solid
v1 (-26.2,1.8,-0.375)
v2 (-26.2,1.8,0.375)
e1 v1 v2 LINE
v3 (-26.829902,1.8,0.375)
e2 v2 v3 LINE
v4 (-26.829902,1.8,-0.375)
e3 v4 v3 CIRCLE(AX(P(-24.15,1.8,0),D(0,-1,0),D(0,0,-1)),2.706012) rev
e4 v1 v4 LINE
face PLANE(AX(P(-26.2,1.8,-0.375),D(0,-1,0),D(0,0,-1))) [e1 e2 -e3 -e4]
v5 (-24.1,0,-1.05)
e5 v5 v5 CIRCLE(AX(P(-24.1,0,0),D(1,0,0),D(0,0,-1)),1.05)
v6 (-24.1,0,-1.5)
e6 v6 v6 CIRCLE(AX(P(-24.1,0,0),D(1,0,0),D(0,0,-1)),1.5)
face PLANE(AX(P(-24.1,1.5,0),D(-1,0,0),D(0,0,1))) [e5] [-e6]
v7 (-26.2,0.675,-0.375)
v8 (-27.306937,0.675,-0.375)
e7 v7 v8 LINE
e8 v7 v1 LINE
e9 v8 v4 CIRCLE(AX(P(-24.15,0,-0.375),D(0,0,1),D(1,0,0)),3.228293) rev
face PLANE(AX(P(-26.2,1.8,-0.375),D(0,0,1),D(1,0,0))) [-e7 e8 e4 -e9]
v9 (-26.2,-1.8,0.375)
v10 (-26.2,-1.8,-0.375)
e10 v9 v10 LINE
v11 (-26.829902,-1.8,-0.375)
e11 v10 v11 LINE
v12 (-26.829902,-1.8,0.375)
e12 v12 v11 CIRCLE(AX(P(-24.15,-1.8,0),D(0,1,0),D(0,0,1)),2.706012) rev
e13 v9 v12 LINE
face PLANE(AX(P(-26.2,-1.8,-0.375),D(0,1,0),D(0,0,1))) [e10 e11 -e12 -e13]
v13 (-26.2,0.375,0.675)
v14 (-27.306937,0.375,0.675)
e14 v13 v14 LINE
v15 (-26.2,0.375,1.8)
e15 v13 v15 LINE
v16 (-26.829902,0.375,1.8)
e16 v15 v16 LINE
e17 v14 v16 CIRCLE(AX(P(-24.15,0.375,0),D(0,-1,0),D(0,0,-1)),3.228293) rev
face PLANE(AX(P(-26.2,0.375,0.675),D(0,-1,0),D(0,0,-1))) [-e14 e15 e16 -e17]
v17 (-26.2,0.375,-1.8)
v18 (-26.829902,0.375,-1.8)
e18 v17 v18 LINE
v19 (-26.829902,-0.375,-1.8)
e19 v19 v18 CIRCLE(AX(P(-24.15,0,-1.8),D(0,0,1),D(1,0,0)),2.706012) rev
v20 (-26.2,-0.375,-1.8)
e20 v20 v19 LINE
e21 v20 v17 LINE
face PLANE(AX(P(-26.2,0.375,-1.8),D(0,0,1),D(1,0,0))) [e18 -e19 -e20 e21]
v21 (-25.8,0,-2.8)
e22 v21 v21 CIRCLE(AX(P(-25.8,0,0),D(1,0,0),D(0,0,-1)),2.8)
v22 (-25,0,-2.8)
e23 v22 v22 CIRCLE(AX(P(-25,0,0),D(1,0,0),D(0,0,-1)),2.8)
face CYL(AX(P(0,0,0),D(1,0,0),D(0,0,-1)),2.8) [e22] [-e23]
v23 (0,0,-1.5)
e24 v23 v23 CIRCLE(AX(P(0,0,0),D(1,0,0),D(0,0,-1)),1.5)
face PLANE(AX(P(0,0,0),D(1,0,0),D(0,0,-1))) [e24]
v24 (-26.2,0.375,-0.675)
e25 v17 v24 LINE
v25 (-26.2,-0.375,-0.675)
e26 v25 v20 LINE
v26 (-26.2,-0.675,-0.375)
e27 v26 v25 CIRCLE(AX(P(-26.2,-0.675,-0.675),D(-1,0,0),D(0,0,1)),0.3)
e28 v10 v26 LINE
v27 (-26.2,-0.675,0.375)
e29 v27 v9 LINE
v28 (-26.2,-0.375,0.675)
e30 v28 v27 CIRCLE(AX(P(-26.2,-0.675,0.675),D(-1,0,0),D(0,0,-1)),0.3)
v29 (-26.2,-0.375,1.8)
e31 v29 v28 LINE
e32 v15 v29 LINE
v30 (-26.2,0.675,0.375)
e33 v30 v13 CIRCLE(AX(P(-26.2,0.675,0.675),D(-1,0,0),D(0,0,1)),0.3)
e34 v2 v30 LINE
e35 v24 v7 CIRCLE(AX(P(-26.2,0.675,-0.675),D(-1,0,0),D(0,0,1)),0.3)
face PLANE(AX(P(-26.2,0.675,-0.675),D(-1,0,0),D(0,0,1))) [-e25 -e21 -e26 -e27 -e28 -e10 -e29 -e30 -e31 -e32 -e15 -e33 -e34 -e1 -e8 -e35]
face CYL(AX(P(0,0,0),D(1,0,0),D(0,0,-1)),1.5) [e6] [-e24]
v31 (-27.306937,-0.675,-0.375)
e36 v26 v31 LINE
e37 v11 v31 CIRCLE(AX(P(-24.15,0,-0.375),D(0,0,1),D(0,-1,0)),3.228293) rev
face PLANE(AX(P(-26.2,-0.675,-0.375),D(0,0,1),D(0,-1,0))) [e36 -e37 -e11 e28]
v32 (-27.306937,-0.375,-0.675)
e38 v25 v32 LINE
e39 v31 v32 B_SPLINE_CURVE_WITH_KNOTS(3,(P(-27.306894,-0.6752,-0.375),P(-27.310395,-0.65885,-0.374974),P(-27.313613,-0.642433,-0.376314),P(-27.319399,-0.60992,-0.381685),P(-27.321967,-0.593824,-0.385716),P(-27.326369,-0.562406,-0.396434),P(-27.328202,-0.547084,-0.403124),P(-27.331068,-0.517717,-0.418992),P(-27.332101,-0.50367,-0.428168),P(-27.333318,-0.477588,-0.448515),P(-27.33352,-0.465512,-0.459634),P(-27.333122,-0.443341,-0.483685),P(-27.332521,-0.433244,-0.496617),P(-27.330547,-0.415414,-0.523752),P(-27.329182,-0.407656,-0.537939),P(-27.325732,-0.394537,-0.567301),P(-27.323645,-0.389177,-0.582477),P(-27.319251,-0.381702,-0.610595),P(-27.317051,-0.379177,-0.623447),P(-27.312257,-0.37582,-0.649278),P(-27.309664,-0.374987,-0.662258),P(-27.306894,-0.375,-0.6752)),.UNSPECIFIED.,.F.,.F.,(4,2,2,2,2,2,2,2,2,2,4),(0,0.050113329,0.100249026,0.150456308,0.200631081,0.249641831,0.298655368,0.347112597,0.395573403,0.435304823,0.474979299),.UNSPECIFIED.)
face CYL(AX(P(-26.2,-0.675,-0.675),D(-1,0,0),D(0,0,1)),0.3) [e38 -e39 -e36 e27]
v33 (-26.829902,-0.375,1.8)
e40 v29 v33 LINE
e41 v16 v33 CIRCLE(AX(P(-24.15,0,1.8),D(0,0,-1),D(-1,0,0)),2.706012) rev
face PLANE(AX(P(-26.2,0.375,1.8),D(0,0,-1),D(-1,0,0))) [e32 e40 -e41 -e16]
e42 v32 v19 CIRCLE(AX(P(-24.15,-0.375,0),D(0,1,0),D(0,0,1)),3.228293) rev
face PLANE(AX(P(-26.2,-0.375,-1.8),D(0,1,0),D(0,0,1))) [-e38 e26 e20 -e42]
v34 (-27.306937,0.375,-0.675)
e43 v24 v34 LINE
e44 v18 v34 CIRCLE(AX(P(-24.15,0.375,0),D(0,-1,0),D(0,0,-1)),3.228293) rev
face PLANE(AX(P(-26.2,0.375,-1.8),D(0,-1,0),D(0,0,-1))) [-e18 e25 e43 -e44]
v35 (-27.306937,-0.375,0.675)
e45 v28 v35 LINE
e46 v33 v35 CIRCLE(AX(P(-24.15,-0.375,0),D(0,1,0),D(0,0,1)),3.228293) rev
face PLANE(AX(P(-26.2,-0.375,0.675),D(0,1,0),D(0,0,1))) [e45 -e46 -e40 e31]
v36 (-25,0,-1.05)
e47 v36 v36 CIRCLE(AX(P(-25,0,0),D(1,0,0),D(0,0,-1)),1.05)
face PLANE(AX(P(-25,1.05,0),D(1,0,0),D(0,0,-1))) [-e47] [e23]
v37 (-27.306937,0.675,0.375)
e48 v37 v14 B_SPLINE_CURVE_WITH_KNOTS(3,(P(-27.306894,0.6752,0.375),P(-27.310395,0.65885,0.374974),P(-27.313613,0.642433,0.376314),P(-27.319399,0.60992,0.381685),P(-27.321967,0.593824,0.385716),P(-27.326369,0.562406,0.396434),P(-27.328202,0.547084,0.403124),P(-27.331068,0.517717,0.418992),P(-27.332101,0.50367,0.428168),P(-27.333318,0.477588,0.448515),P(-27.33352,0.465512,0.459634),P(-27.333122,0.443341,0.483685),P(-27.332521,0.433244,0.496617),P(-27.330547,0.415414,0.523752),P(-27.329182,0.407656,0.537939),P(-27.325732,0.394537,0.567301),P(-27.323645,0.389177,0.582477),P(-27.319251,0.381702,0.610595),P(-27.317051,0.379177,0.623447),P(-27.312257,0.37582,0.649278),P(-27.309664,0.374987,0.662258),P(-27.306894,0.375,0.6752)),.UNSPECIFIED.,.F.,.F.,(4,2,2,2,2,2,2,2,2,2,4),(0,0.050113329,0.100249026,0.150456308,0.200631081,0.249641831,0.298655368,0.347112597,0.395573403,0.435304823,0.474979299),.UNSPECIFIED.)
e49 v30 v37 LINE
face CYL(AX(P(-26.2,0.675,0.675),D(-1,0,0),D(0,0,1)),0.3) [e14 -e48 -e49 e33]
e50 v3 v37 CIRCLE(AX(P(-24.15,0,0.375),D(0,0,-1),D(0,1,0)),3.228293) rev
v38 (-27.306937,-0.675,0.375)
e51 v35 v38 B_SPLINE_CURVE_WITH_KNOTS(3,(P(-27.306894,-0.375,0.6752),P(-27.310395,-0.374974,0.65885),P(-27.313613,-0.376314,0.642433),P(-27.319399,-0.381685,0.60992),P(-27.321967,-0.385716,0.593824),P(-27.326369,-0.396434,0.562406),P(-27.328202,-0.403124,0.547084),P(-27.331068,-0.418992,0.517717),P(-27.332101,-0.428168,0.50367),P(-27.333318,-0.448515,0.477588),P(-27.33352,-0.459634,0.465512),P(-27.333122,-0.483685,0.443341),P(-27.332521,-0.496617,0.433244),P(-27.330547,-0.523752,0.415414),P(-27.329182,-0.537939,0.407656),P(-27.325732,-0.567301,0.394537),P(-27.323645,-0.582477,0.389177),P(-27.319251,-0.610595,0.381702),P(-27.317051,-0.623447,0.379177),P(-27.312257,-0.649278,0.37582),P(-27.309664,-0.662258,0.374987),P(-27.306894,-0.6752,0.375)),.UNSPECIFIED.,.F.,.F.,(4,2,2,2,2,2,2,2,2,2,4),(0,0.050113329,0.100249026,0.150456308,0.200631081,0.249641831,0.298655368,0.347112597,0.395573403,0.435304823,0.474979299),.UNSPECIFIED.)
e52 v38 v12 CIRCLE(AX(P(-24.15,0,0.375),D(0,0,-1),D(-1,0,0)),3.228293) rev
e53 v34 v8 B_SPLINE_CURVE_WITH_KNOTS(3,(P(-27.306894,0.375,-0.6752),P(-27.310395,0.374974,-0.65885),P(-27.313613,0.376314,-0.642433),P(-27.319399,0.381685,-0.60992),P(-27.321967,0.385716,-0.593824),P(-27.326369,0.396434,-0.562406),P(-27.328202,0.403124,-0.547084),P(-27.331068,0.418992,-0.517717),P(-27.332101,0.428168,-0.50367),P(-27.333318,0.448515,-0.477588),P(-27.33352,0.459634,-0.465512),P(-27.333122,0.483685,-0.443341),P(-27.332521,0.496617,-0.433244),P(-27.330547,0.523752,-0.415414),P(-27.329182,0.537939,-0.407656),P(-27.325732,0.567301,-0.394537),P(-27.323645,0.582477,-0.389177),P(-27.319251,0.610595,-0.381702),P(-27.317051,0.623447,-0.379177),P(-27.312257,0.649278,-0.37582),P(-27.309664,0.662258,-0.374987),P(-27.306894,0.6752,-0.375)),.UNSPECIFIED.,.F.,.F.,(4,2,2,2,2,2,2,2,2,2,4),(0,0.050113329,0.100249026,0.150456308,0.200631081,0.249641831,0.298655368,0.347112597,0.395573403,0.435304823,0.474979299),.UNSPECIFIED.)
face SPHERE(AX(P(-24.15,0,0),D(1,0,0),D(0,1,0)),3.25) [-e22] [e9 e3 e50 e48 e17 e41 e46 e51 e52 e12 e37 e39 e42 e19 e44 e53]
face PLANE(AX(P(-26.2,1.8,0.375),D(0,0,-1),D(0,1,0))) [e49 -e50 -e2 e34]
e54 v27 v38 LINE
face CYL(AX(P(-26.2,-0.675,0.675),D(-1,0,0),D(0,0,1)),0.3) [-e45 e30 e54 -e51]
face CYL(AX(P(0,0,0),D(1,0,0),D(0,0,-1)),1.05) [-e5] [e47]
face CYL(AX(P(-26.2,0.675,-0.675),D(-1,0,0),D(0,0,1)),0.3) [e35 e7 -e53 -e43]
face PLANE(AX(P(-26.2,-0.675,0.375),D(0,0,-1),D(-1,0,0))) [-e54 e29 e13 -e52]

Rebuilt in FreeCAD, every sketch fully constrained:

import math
import FreeCAD as App
import Part
import Sketcher
from FreeCAD import Vector

doc = App.newDocument("Part")
body = doc.addObject("PartDesign::Body", "Body")

sketch1 = doc.addObject("Sketcher::SketchObject", "Sketch")
body.addObject(sketch1)
sketch1.AttachmentSupport = (doc.XY_Plane, [""])
sketch1.MapMode = "FlatFace"
sketch1.addGeometry([
    Part.LineSegment(Vector(0, 0, 0), Vector(0, 1.5, 0)),
    Part.LineSegment(Vector(0, 1.5, 0), Vector(-24.1, 1.5, 0)),
    Part.LineSegment(Vector(-24.1, 1.5, 0), Vector(-24.1, 1.05, 0)),
    Part.LineSegment(Vector(-24.1, 1.05, 0), Vector(-25, 1.05, 0)),
    Part.LineSegment(Vector(-25, 1.05, 0), Vector(-25, 2.8, 0)),
    Part.LineSegment(Vector(-25, 2.8, 0), Vector(-25.8, 2.8, 0)),
    Part.ArcOfCircle(Part.Circle(Vector(-24.15, 0, 0), Vector(0, 0, 1), 3.25), math.radians(121), math.radians(180)),
    Part.LineSegment(Vector(-27.4, 0, 0), Vector(0, 0, 0)),
], False)
sketch1.addConstraint([
    Sketcher.Constraint("Coincident", 0, 2, 1, 1),
    Sketcher.Constraint("Coincident", 1, 2, 2, 1),
    Sketcher.Constraint("Coincident", 2, 2, 3, 1),
    Sketcher.Constraint("Coincident", 3, 2, 4, 1),
    Sketcher.Constraint("Coincident", 4, 2, 5, 1),
    Sketcher.Constraint("Coincident", 5, 2, 6, 1),
    Sketcher.Constraint("Coincident", 6, 2, 7, 1),
    Sketcher.Constraint("Coincident", 7, 2, 0, 1),
    Sketcher.Constraint("Vertical", 0),
    Sketcher.Constraint("Horizontal", 1),
    Sketcher.Constraint("Vertical", 2),
    Sketcher.Constraint("Horizontal", 3),
    Sketcher.Constraint("Vertical", 4),
    Sketcher.Constraint("Horizontal", 5),
    Sketcher.Constraint("Horizontal", 7),
    Sketcher.Constraint("Coincident", 7, 2, -1, 1),
    Sketcher.Constraint("PointOnObject", 6, 3, -1),
    Sketcher.Constraint("Radius", 6, 3.25),
    Sketcher.Constraint("DistanceX", 1, 2, 1, 1, 24.1),
    Sketcher.Constraint("DistanceX", 3, 2, 3, 1, 0.9),
    Sketcher.Constraint("DistanceX", 5, 2, 5, 1, 0.8),
    Sketcher.Constraint("DistanceX", 7, 1, 7, 2, 27.4),
    Sketcher.Constraint("DistanceY", 0, 1, 0, 2, 1.5),
    Sketcher.Constraint("DistanceY", 2, 2, 2, 1, 0.45),
])
revolution = doc.addObject("PartDesign::Revolution", "Revolution")
body.addObject(revolution)
revolution.Profile = sketch1
revolution.ReferenceAxis = (sketch1, ["H_Axis"])
revolution.Angle = 360

sketch2 = doc.addObject("Sketcher::SketchObject", "Sketch001")
body.addObject(sketch2)
sketch2.AttachmentSupport = (doc.YZ_Plane, [""])
sketch2.MapMode = "FlatFace"
sketch2.AttachmentOffset = App.Placement(Vector(0, 0, -27.4), App.Rotation())
sketch2.addGeometry([
    Part.LineSegment(Vector(1.8, -0.38, 0), Vector(1.8, 0.38, 0)),
    Part.LineSegment(Vector(1.8, 0.38, 0), Vector(0.68, 0.38, 0)),
    Part.ArcOfCircle(Part.Circle(Vector(0.68, 0.68, 0), Vector(0, 0, 1), 0.3), math.radians(-180), math.radians(-90)),
    Part.LineSegment(Vector(0.38, 0.68, 0), Vector(0.38, 1.8, 0)),
    Part.LineSegment(Vector(0.38, 1.8, 0), Vector(-0.38, 1.8, 0)),
    Part.LineSegment(Vector(-0.38, 1.8, 0), Vector(-0.38, 0.68, 0)),
    Part.ArcOfCircle(Part.Circle(Vector(-0.68, 0.68, 0), Vector(0, 0, 1), 0.3), math.radians(-90), math.radians(0)),
    Part.LineSegment(Vector(-0.68, 0.38, 0), Vector(-1.8, 0.38, 0)),
    Part.LineSegment(Vector(-1.8, 0.38, 0), Vector(-1.8, -0.38, 0)),
    Part.LineSegment(Vector(-1.8, -0.38, 0), Vector(-0.68, -0.38, 0)),
    Part.ArcOfCircle(Part.Circle(Vector(-0.68, -0.68, 0), Vector(0, 0, 1), 0.3), math.radians(0), math.radians(90)),
    Part.LineSegment(Vector(-0.38, -0.68, 0), Vector(-0.38, -1.8, 0)),
    Part.LineSegment(Vector(-0.38, -1.8, 0), Vector(0.38, -1.8, 0)),
    Part.LineSegment(Vector(0.38, -1.8, 0), Vector(0.38, -0.68, 0)),
    Part.ArcOfCircle(Part.Circle(Vector(0.68, -0.68, 0), Vector(0, 0, 1), 0.3), math.radians(90), math.radians(180)),
    Part.LineSegment(Vector(0.68, -0.38, 0), Vector(1.8, -0.38, 0)),
], False)
sketch2.addConstraint([
    Sketcher.Constraint("Coincident", 0, 2, 1, 1),
    Sketcher.Constraint("Tangent", 1, 2, 2, 2),
    Sketcher.Constraint("Tangent", 2, 1, 3, 1),
    Sketcher.Constraint("Coincident", 3, 2, 4, 1),
    Sketcher.Constraint("Coincident", 4, 2, 5, 1),
    Sketcher.Constraint("Tangent", 5, 2, 6, 2),
    Sketcher.Constraint("Tangent", 6, 1, 7, 1),
    Sketcher.Constraint("Coincident", 7, 2, 8, 1),
    Sketcher.Constraint("Coincident", 8, 2, 9, 1),
    Sketcher.Constraint("Tangent", 9, 2, 10, 2),
    Sketcher.Constraint("Tangent", 10, 1, 11, 1),
    Sketcher.Constraint("Coincident", 11, 2, 12, 1),
    Sketcher.Constraint("Coincident", 12, 2, 13, 1),
    Sketcher.Constraint("Tangent", 13, 2, 14, 2),
    Sketcher.Constraint("Tangent", 14, 1, 15, 1),
    Sketcher.Constraint("Coincident", 15, 2, 0, 1),
    Sketcher.Constraint("Vertical", 0),
    Sketcher.Constraint("Horizontal", 1),
    Sketcher.Constraint("Vertical", 3),
    Sketcher.Constraint("Horizontal", 4),
    Sketcher.Constraint("Vertical", 5),
    Sketcher.Constraint("Horizontal", 7),
    Sketcher.Constraint("Vertical", 8),
    Sketcher.Constraint("Horizontal", 9),
    Sketcher.Constraint("Vertical", 11),
    Sketcher.Constraint("Horizontal", 12),
    Sketcher.Constraint("Vertical", 13),
    Sketcher.Constraint("Horizontal", 15),
    Sketcher.Constraint("Equal", 2, 6),
    Sketcher.Constraint("Equal", 6, 10),
    Sketcher.Constraint("Equal", 10, 14),
    Sketcher.Constraint("Symmetric", 2, 3, 10, 3, -1, 1),
    Sketcher.Constraint("Symmetric", 6, 3, 14, 3, -1, 1),
    Sketcher.Constraint("Symmetric", 2, 3, 6, 3, -2),
    Sketcher.Constraint("Equal", 1, 7),
    Sketcher.Constraint("Equal", 12, 0),
    Sketcher.Constraint("Equal", 15, 3),
    Sketcher.Constraint("Equal", 5, 11),
    Sketcher.Constraint("Radius", 2, 0.3),
    Sketcher.Constraint("DistanceX", 4, 2, 4, 1, 0.75),
    Sketcher.Constraint("DistanceX", -1, 1, 0, 2, 1.8),
])
pocket1 = doc.addObject("PartDesign::Pocket", "Pocket")
body.addObject(pocket1)
pocket1.Profile = sketch2
pocket1.Length = 1.2
pocket1.Reversed = True

doc.recompute()
